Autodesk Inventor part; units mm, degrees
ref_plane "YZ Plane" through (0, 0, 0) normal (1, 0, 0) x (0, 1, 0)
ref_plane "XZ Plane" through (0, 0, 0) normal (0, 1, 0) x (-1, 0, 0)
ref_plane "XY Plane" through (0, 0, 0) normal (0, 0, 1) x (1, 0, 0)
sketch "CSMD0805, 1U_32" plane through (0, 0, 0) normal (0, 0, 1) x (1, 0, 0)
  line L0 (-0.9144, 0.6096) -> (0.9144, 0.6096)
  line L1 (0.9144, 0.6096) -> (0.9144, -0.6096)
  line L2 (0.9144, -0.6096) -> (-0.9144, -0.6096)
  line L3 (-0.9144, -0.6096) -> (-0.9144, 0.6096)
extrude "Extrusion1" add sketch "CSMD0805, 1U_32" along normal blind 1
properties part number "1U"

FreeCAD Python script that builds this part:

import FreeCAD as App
import Part
import Sketcher
Q = App.Units.Quantity


def add_polygon(sketch, points):
    """Adds a closed chain of lines whose ends are joined by coincident constraints."""
    first, n = sketch.GeometryCount, len(points)
    for a, b in zip(points, points[1:] + points[:1]):
        sketch.addGeometry(Part.LineSegment(App.Vector(*a, 0), App.Vector(*b, 0)), False)
    for i in range(n):
        sketch.addConstraint(Sketcher.Constraint("Coincident", first + i, 2, first + (i + 1) % n, 1))

doc = App.newDocument("Part")
body = doc.addObject("PartDesign::Body", "Body")

# Sketch on XY plane
sketch1 = body.newObject("Sketcher::SketchObject", "Sketch")
sketch1.AttachmentSupport = (doc.getObject("XY_Plane"), [""])
sketch1.MapMode = "FlatFace"
add_polygon(sketch1, [(0.9, 0.6), (-0.9, 0.6), (-0.9, -0.6), (0.9, -0.6)])  # lines 0-3
sketch1.addConstraint(Sketcher.Constraint("Horizontal", 0))
sketch1.addConstraint(Sketcher.Constraint("Vertical", 1))
sketch1.addConstraint(Sketcher.Constraint("Horizontal", 2))
sketch1.addConstraint(Sketcher.Constraint("Vertical", 3))
sketch1.addConstraint(Sketcher.Constraint("Symmetric", 0, 2, 2, 2, -1, 1))
sketch1.addConstraint(Sketcher.Constraint("DistanceX", 0, 2, 0, 1, Q("0.072 in")))
sketch1.addConstraint(Sketcher.Constraint("DistanceY", 1, 2, 1, 1, Q("0.048 in")))
pad1 = body.newObject("PartDesign::Pad", "Pad")
pad1.Profile = sketch1
pad1.Length = 1

doc.recompute()
